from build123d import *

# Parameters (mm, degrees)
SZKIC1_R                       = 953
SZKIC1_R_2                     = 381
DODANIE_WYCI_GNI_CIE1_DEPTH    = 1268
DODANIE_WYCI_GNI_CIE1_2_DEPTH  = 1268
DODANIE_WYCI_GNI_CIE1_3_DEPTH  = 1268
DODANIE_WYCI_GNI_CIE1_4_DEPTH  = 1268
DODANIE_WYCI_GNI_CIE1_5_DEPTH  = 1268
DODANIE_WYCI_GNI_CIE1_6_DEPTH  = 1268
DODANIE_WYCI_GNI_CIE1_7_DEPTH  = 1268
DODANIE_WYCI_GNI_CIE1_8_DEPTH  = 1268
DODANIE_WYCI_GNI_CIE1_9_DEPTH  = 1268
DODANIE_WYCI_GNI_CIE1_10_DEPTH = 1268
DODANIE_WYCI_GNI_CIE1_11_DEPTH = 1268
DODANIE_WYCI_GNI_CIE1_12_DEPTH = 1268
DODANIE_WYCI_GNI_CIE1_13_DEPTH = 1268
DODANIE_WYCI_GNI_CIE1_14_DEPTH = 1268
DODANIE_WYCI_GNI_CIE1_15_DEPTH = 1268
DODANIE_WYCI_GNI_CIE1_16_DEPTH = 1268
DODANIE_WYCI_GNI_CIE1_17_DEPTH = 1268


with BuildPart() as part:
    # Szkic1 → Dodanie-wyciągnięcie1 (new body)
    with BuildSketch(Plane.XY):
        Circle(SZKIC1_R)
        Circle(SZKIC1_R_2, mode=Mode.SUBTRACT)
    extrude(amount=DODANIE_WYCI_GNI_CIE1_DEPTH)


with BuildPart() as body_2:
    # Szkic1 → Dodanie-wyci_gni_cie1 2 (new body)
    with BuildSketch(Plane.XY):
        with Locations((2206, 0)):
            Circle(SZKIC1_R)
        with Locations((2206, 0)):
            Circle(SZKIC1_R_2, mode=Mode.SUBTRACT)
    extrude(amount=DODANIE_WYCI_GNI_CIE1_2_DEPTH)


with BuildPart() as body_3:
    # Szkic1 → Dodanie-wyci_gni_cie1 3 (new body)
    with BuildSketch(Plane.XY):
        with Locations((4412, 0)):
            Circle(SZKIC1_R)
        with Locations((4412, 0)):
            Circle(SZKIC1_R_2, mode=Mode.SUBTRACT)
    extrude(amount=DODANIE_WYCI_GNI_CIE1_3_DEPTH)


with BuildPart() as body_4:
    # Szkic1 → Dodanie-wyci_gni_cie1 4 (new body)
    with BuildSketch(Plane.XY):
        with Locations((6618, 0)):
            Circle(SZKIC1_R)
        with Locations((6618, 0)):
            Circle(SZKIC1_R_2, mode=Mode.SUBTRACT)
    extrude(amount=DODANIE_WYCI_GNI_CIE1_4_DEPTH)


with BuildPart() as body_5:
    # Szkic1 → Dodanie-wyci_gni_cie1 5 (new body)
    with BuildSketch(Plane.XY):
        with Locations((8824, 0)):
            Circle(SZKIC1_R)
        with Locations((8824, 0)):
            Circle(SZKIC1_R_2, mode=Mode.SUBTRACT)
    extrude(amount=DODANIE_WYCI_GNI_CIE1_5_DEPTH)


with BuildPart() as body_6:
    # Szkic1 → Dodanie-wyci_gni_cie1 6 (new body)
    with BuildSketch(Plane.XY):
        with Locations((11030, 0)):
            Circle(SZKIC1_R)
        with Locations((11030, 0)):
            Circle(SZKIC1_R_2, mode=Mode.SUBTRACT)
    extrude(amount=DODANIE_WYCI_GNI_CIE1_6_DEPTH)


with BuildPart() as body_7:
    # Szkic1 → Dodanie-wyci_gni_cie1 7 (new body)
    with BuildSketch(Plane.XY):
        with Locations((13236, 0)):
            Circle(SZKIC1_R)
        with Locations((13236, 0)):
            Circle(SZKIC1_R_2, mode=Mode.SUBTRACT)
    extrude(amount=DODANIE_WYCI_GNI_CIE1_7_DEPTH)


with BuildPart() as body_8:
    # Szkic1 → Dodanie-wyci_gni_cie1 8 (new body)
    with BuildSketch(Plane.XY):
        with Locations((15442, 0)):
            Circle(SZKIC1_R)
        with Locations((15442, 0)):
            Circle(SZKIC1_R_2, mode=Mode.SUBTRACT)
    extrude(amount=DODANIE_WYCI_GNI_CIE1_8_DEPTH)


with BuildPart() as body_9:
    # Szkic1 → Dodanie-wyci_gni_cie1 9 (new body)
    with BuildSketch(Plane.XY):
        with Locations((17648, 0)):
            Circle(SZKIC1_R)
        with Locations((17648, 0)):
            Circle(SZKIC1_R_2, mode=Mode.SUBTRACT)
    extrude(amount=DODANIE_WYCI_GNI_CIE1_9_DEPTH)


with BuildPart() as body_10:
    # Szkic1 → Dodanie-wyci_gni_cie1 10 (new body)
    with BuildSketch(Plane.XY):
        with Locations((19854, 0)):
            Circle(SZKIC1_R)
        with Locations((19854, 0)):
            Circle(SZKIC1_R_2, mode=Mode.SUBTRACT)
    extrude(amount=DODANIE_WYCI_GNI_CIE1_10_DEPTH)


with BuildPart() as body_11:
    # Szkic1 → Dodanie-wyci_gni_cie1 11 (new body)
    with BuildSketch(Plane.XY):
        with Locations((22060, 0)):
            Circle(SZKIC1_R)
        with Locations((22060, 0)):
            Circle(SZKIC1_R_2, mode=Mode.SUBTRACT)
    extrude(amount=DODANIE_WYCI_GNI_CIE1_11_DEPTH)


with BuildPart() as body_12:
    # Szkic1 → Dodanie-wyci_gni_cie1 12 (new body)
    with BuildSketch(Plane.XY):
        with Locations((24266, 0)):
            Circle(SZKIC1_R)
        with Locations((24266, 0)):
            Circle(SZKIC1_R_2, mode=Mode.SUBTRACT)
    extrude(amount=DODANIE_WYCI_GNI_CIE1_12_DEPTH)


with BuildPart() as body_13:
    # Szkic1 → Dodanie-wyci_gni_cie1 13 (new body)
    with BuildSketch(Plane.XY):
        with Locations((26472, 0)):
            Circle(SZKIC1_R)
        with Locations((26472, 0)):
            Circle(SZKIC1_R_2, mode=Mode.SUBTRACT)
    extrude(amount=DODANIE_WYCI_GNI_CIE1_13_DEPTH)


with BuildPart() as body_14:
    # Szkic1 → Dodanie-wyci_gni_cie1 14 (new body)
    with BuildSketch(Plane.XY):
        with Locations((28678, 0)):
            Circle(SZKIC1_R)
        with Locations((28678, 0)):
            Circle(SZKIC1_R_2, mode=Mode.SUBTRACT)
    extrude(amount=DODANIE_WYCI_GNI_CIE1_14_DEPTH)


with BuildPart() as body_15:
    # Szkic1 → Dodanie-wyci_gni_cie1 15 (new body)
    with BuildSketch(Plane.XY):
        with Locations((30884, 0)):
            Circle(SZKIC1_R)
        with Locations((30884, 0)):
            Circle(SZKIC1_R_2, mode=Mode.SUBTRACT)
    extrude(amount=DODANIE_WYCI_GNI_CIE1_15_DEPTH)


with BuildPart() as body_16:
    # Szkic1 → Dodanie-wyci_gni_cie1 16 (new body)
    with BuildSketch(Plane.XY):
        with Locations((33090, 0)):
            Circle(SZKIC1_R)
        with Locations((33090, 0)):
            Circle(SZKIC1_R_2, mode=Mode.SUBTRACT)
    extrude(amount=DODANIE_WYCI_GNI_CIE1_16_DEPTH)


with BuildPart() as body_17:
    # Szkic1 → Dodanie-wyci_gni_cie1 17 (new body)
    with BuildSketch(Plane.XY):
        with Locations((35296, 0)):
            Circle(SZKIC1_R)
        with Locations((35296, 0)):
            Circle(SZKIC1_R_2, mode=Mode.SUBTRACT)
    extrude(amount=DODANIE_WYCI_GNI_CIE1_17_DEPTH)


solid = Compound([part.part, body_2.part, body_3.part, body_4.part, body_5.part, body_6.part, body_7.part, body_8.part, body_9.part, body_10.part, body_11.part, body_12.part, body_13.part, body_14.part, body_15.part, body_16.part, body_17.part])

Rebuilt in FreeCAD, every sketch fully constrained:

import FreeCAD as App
import Part
import Sketcher

doc = App.newDocument("Part")
body = doc.addObject("PartDesign::Body", "Body")

# Sketch on XY plane
sketch1 = body.newObject("Sketcher::SketchObject", "Sketch")
sketch1.AttachmentSupport = (doc.getObject("XY_Plane"), [""])
sketch1.MapMode = "FlatFace"
sketch1.addGeometry([
    Part.Circle(App.Vector(0, 0, 0), App.Vector(0, 0, 1), 953),
    Part.Circle(App.Vector(0, 0, 0), App.Vector(0, 0, 1), 381),
], False)
sketch1.addConstraint([
    Sketcher.Constraint("Coincident", 0, 3, -1, 1),
    Sketcher.Constraint("Coincident", 1, 3, -1, 1),
    Sketcher.Constraint("Diameter", 0, 1906.0),
    Sketcher.Constraint("Diameter", 1, 762.0),
])
pad1 = body.newObject("PartDesign::Pad", "Pad")
pad1.Profile = sketch1
pad1.Length = 1268
body2 = doc.addObject("PartDesign::Body", "Body001")

# Sketch on XY plane
sketch2 = body2.newObject("Sketcher::SketchObject", "Sketch001")
sketch2.AttachmentSupport = (doc.getObject("XY_Plane001"), [""])
sketch2.MapMode = "FlatFace"
sketch2.addGeometry([
    Part.Circle(App.Vector(2206, 0, 0), App.Vector(0, 0, 1), 953),
    Part.Circle(App.Vector(2206, 0, 0), App.Vector(0, 0, 1), 381),
], False)
sketch2.addConstraint([
    Sketcher.Constraint("Coincident", 1, 3, 0, 3),
    Sketcher.Constraint("PointOnObject", 0, 3, -1),
    Sketcher.Constraint("Diameter", 0, 1906.0),
    Sketcher.Constraint("Diameter", 1, 762.0),
    Sketcher.Constraint("DistanceX", -1, 1, 0, 3, 2206.0),
])
pad2 = body2.newObject("PartDesign::Pad", "Pad001")
pad2.Profile = sketch2
pad2.Length = 1268
body3 = doc.addObject("PartDesign::Body", "Body002")

# Sketch on XY plane
sketch3 = body3.newObject("Sketcher::SketchObject", "Sketch002")
sketch3.AttachmentSupport = (doc.getObject("XY_Plane002"), [""])
sketch3.MapMode = "FlatFace"
sketch3.addGeometry([
    Part.Circle(App.Vector(4412, 0, 0), App.Vector(0, 0, 1), 953),
    Part.Circle(App.Vector(4412, 0, 0), App.Vector(0, 0, 1), 381),
], False)
sketch3.addConstraint([
    Sketcher.Constraint("Coincident", 1, 3, 0, 3),
    Sketcher.Constraint("PointOnObject", 0, 3, -1),
    Sketcher.Constraint("Diameter", 0, 1906.0),
    Sketcher.Constraint("Diameter", 1, 762.0),
    Sketcher.Constraint("DistanceX", -1, 1, 0, 3, 4412.0),
])
pad3 = body3.newObject("PartDesign::Pad", "Pad002")
pad3.Profile = sketch3
pad3.Length = 1268
body4 = doc.addObject("PartDesign::Body", "Body003")

# Sketch on XY plane
sketch4 = body4.newObject("Sketcher::SketchObject", "Sketch003")
sketch4.AttachmentSupport = (doc.getObject("XY_Plane003"), [""])
sketch4.MapMode = "FlatFace"
sketch4.addGeometry([
    Part.Circle(App.Vector(6618, 0, 0), App.Vector(0, 0, 1), 953),
    Part.Circle(App.Vector(6618, 0, 0), App.Vector(0, 0, 1), 381),
], False)
sketch4.addConstraint([
    Sketcher.Constraint("Coincident", 1, 3, 0, 3),
    Sketcher.Constraint("PointOnObject", 0, 3, -1),
    Sketcher.Constraint("Diameter", 0, 1906.0),
    Sketcher.Constraint("Diameter", 1, 762.0),
    Sketcher.Constraint("DistanceX", -1, 1, 0, 3, 6618.0),
])
pad4 = body4.newObject("PartDesign::Pad", "Pad003")
pad4.Profile = sketch4
pad4.Length = 1268
body5 = doc.addObject("PartDesign::Body", "Body004")

# Sketch on XY plane
sketch5 = body5.newObject("Sketcher::SketchObject", "Sketch004")
sketch5.AttachmentSupport = (doc.getObject("XY_Plane004"), [""])
sketch5.MapMode = "FlatFace"
sketch5.addGeometry([
    Part.Circle(App.Vector(8824, 0, 0), App.Vector(0, 0, 1), 953),
    Part.Circle(App.Vector(8824, 0, 0), App.Vector(0, 0, 1), 381),
], False)
sketch5.addConstraint([
    Sketcher.Constraint("Coincident", 1, 3, 0, 3),
    Sketcher.Constraint("PointOnObject", 0, 3, -1),
    Sketcher.Constraint("Diameter", 0, 1906.0),
    Sketcher.Constraint("Diameter", 1, 762.0),
    Sketcher.Constraint("DistanceX", -1, 1, 0, 3, 8824.0),
])
pad5 = body5.newObject("PartDesign::Pad", "Pad004")
pad5.Profile = sketch5
pad5.Length = 1268
body6 = doc.addObject("PartDesign::Body", "Body005")

# Sketch on XY plane
sketch6 = body6.newObject("Sketcher::SketchObject", "Sketch005")
sketch6.AttachmentSupport = (doc.getObject("XY_Plane005"), [""])
sketch6.MapMode = "FlatFace"
sketch6.addGeometry([
    Part.Circle(App.Vector(11030, 0, 0), App.Vector(0, 0, 1), 953),
    Part.Circle(App.Vector(11030, 0, 0), App.Vector(0, 0, 1), 381),
], False)
sketch6.addConstraint([
    Sketcher.Constraint("Coincident", 1, 3, 0, 3),
    Sketcher.Constraint("PointOnObject", 0, 3, -1),
    Sketcher.Constraint("Diameter", 0, 1906.0),
    Sketcher.Constraint("Diameter", 1, 762.0),
    Sketcher.Constraint("DistanceX", -1, 1, 0, 3, 11030.0),
])
pad6 = body6.newObject("PartDesign::Pad", "Pad005")
pad6.Profile = sketch6
pad6.Length = 1268
body7 = doc.addObject("PartDesign::Body", "Body006")

# Sketch on XY plane
sketch7 = body7.newObject("Sketcher::SketchObject", "Sketch006")
sketch7.AttachmentSupport = (doc.getObject("XY_Plane006"), [""])
sketch7.MapMode = "FlatFace"
sketch7.addGeometry([
    Part.Circle(App.Vector(13236, 0, 0), App.Vector(0, 0, 1), 953),
    Part.Circle(App.Vector(13236, 0, 0), App.Vector(0, 0, 1), 381),
], False)
sketch7.addConstraint([
    Sketcher.Constraint("Coincident", 1, 3, 0, 3),
    Sketcher.Constraint("PointOnObject", 0, 3, -1),
    Sketcher.Constraint("Diameter", 0, 1906.0),
    Sketcher.Constraint("Diameter", 1, 762.0),
    Sketcher.Constraint("DistanceX", -1, 1, 0, 3, 13236.0),
])
pad7 = body7.newObject("PartDesign::Pad", "Pad006")
pad7.Profile = sketch7
pad7.Length = 1268
body8 = doc.addObject("PartDesign::Body", "Body007")

# Sketch on XY plane
sketch8 = body8.newObject("Sketcher::SketchObject", "Sketch007")
sketch8.AttachmentSupport = (doc.getObject("XY_Plane007"), [""])
sketch8.MapMode = "FlatFace"
sketch8.addGeometry([
    Part.Circle(App.Vector(15442, 0, 0), App.Vector(0, 0, 1), 953),
    Part.Circle(App.Vector(15442, 0, 0), App.Vector(0, 0, 1), 381),
], False)
sketch8.addConstraint([
    Sketcher.Constraint("Coincident", 1, 3, 0, 3),
    Sketcher.Constraint("PointOnObject", 0, 3, -1),
    Sketcher.Constraint("Diameter", 0, 1906.0),
    Sketcher.Constraint("Diameter", 1, 762.0),
    Sketcher.Constraint("DistanceX", -1, 1, 0, 3, 15442.0),
])
pad8 = body8.newObject("PartDesign::Pad", "Pad007")
pad8.Profile = sketch8
pad8.Length = 1268
body9 = doc.addObject("PartDesign::Body", "Body008")

# Sketch on XY plane
sketch9 = body9.newObject("Sketcher::SketchObject", "Sketch008")
sketch9.AttachmentSupport = (doc.getObject("XY_Plane008"), [""])
sketch9.MapMode = "FlatFace"
sketch9.addGeometry([
    Part.Circle(App.Vector(17648, 0, 0), App.Vector(0, 0, 1), 953),
    Part.Circle(App.Vector(17648, 0, 0), App.Vector(0, 0, 1), 381),
], False)
sketch9.addConstraint([
    Sketcher.Constraint("Coincident", 1, 3, 0, 3),
    Sketcher.Constraint("PointOnObject", 0, 3, -1),
    Sketcher.Constraint("Diameter", 0, 1906.0),
    Sketcher.Constraint("Diameter", 1, 762.0),
    Sketcher.Constraint("DistanceX", -1, 1, 0, 3, 17648.0),
])
pad9 = body9.newObject("PartDesign::Pad", "Pad008")
pad9.Profile = sketch9
pad9.Length = 1268
body10 = doc.addObject("PartDesign::Body", "Body009")

# Sketch on XY plane
sketch10 = body10.newObject("Sketcher::SketchObject", "Sketch009")
sketch10.AttachmentSupport = (doc.getObject("XY_Plane009"), [""])
sketch10.MapMode = "FlatFace"
sketch10.addGeometry([
    Part.Circle(App.Vector(19854, 0, 0), App.Vector(0, 0, 1), 953),
    Part.Circle(App.Vector(19854, 0, 0), App.Vector(0, 0, 1), 381),
], False)
sketch10.addConstraint([
    Sketcher.Constraint("Coincident", 1, 3, 0, 3),
    Sketcher.Constraint("PointOnObject", 0, 3, -1),
    Sketcher.Constraint("Diameter", 0, 1906.0),
    Sketcher.Constraint("Diameter", 1, 762.0),
    Sketcher.Constraint("DistanceX", -1, 1, 0, 3, 19854.0),
])
pad10 = body10.newObject("PartDesign::Pad", "Pad009")
pad10.Profile = sketch10
pad10.Length = 1268
body11 = doc.addObject("PartDesign::Body", "Body010")

# Sketch on XY plane
sketch11 = body11.newObject("Sketcher::SketchObject", "Sketch010")
sketch11.AttachmentSupport = (doc.getObject("XY_Plane010"), [""])
sketch11.MapMode = "FlatFace"
sketch11.addGeometry([
    Part.Circle(App.Vector(22060, 0, 0), App.Vector(0, 0, 1), 953),
    Part.Circle(App.Vector(22060, 0, 0), App.Vector(0, 0, 1), 381),
], False)
sketch11.addConstraint([
    Sketcher.Constraint("Coincident", 1, 3, 0, 3),
    Sketcher.Constraint("PointOnObject", 0, 3, -1),
    Sketcher.Constraint("Diameter", 0, 1906.0),
    Sketcher.Constraint("Diameter", 1, 762.0),
    Sketcher.Constraint("DistanceX", -1, 1, 0, 3, 22060.0),
])
pad11 = body11.newObject("PartDesign::Pad", "Pad010")
pad11.Profile = sketch11
pad11.Length = 1268
body12 = doc.addObject("PartDesign::Body", "Body011")

# Sketch on XY plane
sketch12 = body12.newObject("Sketcher::SketchObject", "Sketch011")
sketch12.AttachmentSupport = (doc.getObject("XY_Plane011"), [""])
sketch12.MapMode = "FlatFace"
sketch12.addGeometry([
    Part.Circle(App.Vector(24266, 0, 0), App.Vector(0, 0, 1), 953),
    Part.Circle(App.Vector(24266, 0, 0), App.Vector(0, 0, 1), 381),
], False)
sketch12.addConstraint([
    Sketcher.Constraint("Coincident", 1, 3, 0, 3),
    Sketcher.Constraint("PointOnObject", 0, 3, -1),
    Sketcher.Constraint("Diameter", 0, 1906.0),
    Sketcher.Constraint("Diameter", 1, 762.0),
    Sketcher.Constraint("DistanceX", -1, 1, 0, 3, 24266.0),
])
pad12 = body12.newObject("PartDesign::Pad", "Pad011")
pad12.Profile = sketch12
pad12.Length = 1268
body13 = doc.addObject("PartDesign::Body", "Body012")

# Sketch on XY plane
sketch13 = body13.newObject("Sketcher::SketchObject", "Sketch012")
sketch13.AttachmentSupport = (doc.getObject("XY_Plane012"), [""])
sketch13.MapMode = "FlatFace"
sketch13.addGeometry([
    Part.Circle(App.Vector(26472, 0, 0), App.Vector(0, 0, 1), 953),
    Part.Circle(App.Vector(26472, 0, 0), App.Vector(0, 0, 1), 381),
], False)
sketch13.addConstraint([
    Sketcher.Constraint("Coincident", 1, 3, 0, 3),
    Sketcher.Constraint("PointOnObject", 0, 3, -1),
    Sketcher.Constraint("Diameter", 0, 1906.0),
    Sketcher.Constraint("Diameter", 1, 762.0),
    Sketcher.Constraint("DistanceX", -1, 1, 0, 3, 26472.0),
])
pad13 = body13.newObject("PartDesign::Pad", "Pad012")
pad13.Profile = sketch13
pad13.Length = 1268
body14 = doc.addObject("PartDesign::Body", "Body013")

# Sketch on XY plane
sketch14 = body14.newObject("Sketcher::SketchObject", "Sketch013")
sketch14.AttachmentSupport = (doc.getObject("XY_Plane013"), [""])
sketch14.MapMode = "FlatFace"
sketch14.addGeometry([
    Part.Circle(App.Vector(28678, 0, 0), App.Vector(0, 0, 1), 953),
    Part.Circle(App.Vector(28678, 0, 0), App.Vector(0, 0, 1), 381),
], False)
sketch14.addConstraint([
    Sketcher.Constraint("Coincident", 1, 3, 0, 3),
    Sketcher.Constraint("PointOnObject", 0, 3, -1),
    Sketcher.Constraint("Diameter", 0, 1906.0),
    Sketcher.Constraint("Diameter", 1, 762.0),
    Sketcher.Constraint("DistanceX", -1, 1, 0, 3, 28678.0),
])
pad14 = body14.newObject("PartDesign::Pad", "Pad013")
pad14.Profile = sketch14
pad14.Length = 1268
body15 = doc.addObject("PartDesign::Body", "Body014")

# Sketch on XY plane
sketch15 = body15.newObject("Sketcher::SketchObject", "Sketch014")
sketch15.AttachmentSupport = (doc.getObject("XY_Plane014"), [""])
sketch15.MapMode = "FlatFace"
sketch15.addGeometry([
    Part.Circle(App.Vector(30884, 0, 0), App.Vector(0, 0, 1), 953),
    Part.Circle(App.Vector(30884, 0, 0), App.Vector(0, 0, 1), 381),
], False)
sketch15.addConstraint([
    Sketcher.Constraint("Coincident", 1, 3, 0, 3),
    Sketcher.Constraint("PointOnObject", 0, 3, -1),
    Sketcher.Constraint("Diameter", 0, 1906.0),
    Sketcher.Constraint("Diameter", 1, 762.0),
    Sketcher.Constraint("DistanceX", -1, 1, 0, 3, 30884.0),
])
pad15 = body15.newObject("PartDesign::Pad", "Pad014")
pad15.Profile = sketch15
pad15.Length = 1268
body16 = doc.addObject("PartDesign::Body", "Body015")

# Sketch on XY plane
sketch16 = body16.newObject("Sketcher::SketchObject", "Sketch015")
sketch16.AttachmentSupport = (doc.getObject("XY_Plane015"), [""])
sketch16.MapMode = "FlatFace"
sketch16.addGeometry([
    Part.Circle(App.Vector(33090, 0, 0), App.Vector(0, 0, 1), 953),
    Part.Circle(App.Vector(33090, 0, 0), App.Vector(0, 0, 1), 381),
], False)
sketch16.addConstraint([
    Sketcher.Constraint("Coincident", 1, 3, 0, 3),
    Sketcher.Constraint("PointOnObject", 0, 3, -1),
    Sketcher.Constraint("Diameter", 0, 1906.0),
    Sketcher.Constraint("Diameter", 1, 762.0),
    Sketcher.Constraint("DistanceX", -1, 1, 0, 3, 33090.0),
])
pad16 = body16.newObject("PartDesign::Pad", "Pad015")
pad16.Profile = sketch16
pad16.Length = 1268
body17 = doc.addObject("PartDesign::Body", "Body016")

# Sketch on XY plane
sketch17 = body17.newObject("Sketcher::SketchObject", "Sketch016")
sketch17.AttachmentSupport = (doc.getObject("XY_Plane016"), [""])
sketch17.MapMode = "FlatFace"
sketch17.addGeometry([
    Part.Circle(App.Vector(35296, 0, 0), App.Vector(0, 0, 1), 953),
    Part.Circle(App.Vector(35296, 0, 0), App.Vector(0, 0, 1), 381),
], False)
sketch17.addConstraint([
    Sketcher.Constraint("Coincident", 1, 3, 0, 3),
    Sketcher.Constraint("PointOnObject", 0, 3, -1),
    Sketcher.Constraint("Diameter", 0, 1906.0),
    Sketcher.Constraint("Diameter", 1, 762.0),
    Sketcher.Constraint("DistanceX", -1, 1, 0, 3, 35296.0),
])
pad17 = body17.newObject("PartDesign::Pad", "Pad016")
pad17.Profile = sketch17
pad17.Length = 1268

doc.recompute()
